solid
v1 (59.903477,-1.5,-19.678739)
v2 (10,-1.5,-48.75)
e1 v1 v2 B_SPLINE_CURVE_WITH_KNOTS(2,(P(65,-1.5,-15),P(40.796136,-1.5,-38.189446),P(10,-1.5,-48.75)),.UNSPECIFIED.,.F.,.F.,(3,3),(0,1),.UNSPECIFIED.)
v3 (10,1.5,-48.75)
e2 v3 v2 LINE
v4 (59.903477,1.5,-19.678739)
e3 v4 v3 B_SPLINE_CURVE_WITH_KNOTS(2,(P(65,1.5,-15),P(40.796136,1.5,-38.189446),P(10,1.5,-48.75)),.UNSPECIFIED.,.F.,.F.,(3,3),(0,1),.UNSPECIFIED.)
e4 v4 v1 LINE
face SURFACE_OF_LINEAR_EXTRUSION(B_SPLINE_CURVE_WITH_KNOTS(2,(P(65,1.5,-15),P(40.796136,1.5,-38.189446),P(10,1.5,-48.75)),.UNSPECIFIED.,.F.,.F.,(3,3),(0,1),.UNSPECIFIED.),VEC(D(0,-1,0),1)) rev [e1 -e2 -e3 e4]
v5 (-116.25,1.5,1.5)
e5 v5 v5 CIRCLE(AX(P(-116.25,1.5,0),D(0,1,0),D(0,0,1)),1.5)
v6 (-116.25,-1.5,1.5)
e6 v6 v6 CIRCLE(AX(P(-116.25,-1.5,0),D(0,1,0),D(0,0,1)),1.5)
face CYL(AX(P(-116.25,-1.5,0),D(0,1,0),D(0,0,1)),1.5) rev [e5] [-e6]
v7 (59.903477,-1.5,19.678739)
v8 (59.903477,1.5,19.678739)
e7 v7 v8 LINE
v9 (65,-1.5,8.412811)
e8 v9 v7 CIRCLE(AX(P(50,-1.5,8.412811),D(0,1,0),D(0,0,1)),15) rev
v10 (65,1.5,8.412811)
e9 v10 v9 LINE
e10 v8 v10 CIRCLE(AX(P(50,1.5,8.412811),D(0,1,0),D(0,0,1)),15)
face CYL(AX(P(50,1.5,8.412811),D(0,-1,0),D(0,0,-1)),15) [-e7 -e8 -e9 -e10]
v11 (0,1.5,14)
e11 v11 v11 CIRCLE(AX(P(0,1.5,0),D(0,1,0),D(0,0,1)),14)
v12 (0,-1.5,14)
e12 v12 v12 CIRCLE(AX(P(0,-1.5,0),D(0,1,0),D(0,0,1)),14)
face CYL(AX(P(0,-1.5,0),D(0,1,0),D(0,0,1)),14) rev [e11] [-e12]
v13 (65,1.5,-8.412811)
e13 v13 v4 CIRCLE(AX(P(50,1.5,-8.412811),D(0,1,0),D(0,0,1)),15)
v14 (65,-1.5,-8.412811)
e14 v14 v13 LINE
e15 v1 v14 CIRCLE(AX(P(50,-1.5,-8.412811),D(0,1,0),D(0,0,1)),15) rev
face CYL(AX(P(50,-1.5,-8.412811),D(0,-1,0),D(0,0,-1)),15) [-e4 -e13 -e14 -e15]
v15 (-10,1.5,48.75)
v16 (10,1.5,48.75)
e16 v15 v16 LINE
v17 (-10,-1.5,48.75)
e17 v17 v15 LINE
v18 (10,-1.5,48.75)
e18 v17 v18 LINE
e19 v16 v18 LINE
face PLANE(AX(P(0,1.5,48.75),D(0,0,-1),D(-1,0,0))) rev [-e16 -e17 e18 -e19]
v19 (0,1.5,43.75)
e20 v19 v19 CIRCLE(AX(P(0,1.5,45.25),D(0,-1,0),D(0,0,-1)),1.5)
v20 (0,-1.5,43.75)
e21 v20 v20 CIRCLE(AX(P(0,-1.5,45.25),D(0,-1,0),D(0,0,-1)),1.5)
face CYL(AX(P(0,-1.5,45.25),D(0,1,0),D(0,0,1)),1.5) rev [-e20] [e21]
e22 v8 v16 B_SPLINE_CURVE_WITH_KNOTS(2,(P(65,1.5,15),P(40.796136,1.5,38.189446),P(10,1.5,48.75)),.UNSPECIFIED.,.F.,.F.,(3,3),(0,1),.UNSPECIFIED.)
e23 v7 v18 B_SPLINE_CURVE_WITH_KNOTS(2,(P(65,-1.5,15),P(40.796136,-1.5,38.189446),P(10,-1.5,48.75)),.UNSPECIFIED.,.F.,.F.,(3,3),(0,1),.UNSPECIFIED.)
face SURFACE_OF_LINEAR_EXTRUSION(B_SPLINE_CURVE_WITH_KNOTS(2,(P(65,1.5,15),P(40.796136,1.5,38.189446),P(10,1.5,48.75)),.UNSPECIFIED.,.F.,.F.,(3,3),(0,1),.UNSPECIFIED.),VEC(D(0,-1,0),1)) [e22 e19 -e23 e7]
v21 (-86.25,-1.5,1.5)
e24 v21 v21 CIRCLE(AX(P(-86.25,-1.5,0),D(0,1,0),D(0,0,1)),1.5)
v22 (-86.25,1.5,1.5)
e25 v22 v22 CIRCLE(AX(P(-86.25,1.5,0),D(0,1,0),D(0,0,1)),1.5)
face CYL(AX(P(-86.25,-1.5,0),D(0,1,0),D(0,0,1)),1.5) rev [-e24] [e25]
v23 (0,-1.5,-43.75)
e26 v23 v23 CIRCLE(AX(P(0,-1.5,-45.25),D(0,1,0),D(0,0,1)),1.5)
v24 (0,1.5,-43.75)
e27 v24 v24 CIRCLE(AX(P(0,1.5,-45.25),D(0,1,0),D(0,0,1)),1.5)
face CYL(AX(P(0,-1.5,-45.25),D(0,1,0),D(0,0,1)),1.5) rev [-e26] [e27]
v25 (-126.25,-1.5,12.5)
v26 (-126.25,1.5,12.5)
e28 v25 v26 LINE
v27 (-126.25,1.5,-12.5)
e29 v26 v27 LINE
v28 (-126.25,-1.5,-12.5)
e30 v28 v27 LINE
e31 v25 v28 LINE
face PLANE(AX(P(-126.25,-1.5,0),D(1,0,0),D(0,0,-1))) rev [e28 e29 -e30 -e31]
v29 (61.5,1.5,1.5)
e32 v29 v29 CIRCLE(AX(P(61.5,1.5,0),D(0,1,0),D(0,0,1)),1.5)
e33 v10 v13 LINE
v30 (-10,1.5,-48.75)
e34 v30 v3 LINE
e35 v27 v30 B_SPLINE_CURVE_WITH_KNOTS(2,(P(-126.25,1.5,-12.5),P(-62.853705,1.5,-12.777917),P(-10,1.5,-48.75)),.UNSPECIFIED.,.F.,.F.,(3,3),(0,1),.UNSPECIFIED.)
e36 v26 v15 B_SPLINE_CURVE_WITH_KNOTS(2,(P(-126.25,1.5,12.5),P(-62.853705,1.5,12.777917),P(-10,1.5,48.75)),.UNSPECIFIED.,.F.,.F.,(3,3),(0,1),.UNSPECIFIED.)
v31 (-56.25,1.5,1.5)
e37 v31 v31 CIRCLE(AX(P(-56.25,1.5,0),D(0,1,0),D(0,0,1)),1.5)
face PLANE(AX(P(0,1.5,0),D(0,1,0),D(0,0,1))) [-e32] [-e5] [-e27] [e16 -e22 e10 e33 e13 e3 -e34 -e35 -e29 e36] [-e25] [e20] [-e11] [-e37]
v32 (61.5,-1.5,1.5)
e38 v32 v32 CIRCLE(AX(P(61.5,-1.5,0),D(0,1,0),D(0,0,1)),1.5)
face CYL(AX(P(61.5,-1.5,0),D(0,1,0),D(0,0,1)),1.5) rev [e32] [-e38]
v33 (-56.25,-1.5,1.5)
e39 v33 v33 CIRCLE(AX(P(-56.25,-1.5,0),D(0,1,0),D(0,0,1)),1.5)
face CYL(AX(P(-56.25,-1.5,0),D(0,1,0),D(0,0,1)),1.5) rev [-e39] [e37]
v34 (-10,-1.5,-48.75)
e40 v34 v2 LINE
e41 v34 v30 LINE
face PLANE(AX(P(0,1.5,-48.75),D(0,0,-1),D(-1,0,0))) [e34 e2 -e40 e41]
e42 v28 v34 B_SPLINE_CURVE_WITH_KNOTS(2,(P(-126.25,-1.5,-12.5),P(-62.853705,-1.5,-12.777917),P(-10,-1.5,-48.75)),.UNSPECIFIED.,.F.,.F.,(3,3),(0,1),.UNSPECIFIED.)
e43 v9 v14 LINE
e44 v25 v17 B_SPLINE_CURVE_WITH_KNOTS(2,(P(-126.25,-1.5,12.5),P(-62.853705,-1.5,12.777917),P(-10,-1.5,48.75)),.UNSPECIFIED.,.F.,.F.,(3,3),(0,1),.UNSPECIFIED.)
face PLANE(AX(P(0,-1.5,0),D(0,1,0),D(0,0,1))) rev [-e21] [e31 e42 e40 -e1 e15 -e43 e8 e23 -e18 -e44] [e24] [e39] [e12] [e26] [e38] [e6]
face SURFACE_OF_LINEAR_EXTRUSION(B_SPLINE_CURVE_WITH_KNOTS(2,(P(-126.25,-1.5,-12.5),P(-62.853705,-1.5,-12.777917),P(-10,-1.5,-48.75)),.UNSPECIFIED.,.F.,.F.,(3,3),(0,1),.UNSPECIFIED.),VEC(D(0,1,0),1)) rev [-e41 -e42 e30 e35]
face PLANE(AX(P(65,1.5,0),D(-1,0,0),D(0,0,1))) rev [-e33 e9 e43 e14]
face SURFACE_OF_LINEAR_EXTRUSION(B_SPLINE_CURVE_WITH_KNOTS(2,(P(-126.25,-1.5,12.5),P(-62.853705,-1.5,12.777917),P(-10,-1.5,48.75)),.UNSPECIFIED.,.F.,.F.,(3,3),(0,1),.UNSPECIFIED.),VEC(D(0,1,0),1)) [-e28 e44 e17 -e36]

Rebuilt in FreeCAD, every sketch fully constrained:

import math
import FreeCAD as App
import Part
import Sketcher
Q = App.Units.Quantity


def edges_at(feature, points):
    """Names of the edges that pass closest to the given points."""
    edges = feature.Shape.Edges
    near = lambda p: min(range(len(edges)), key=lambda i: edges[i].distToShape(Part.Vertex(*p))[0])
    return sorted({f"Edge{near(p) + 1}" for p in points})

doc = App.newDocument("Part")
params = doc.addObject("Spreadsheet::Sheet", "Params")
for row, (alias, value) in enumerate([
    ("pad1_length", "3 mm"),
    ("sketch2_diameter", "3 mm"),
    ("fillet_radius", "15 mm"),
    ("fillet2_radius", "15 mm"),
    ("sketch3_radius", "1.5 mm"),
    ("sketch3_width", "27 mm"),
    ("sketch3_height", "2 mm"),
    ("sketch3_width2", "8.5 mm"),
    ("pad2_length", "3 mm"),
    ("sketch4_radius", "14 mm"),
], start=1):
    params.set(f"A{row}", alias)
    params.set(f"B{row}", "=" + value)
    params.setAlias(f"B{row}", alias)

body = doc.addObject("PartDesign::Body", "Body")

# Sketch on XZ plane
sketch1 = doc.addObject("Sketcher::SketchObject", "Sketch")
body.addObject(sketch1)
sketch1.AttachmentSupport = (doc.XZ_Plane, [""])
sketch1.MapMode = "FlatFace"
sketch1.addGeometry(Part.LineSegment(App.Vector(0, -48.75, 0), App.Vector(0, 0, 0)), False)
sketch1.addGeometry(Part.LineSegment(App.Vector(0, 0, 0), App.Vector(65, 0, 0)), False)
sketch1.addGeometry(Part.LineSegment(App.Vector(65, 0, 0), App.Vector(65, -15, 0)), False)
sketch1.addGeometry(Part.BSplineCurve([App.Vector(65, -15, 0), App.Vector(40.796136, -38.189446, 0), App.Vector(10, -48.75, 0)], [3, 3], [0, 1], False, 2, [1, 1, 1], False), False)
sketch1.addGeometry(Part.LineSegment(App.Vector(10, -48.75, 0), App.Vector(0, -48.75, 0)), False)
sketch1.addConstraint(Sketcher.Constraint("Block", 3))
sketch1.addConstraint(Sketcher.Constraint("Coincident", 0, 2, 1, 1))
sketch1.addConstraint(Sketcher.Constraint("Coincident", 1, 2, 2, 1))
sketch1.addConstraint(Sketcher.Constraint("Coincident", 2, 2, 3, 1))
sketch1.addConstraint(Sketcher.Constraint("Coincident", 3, 2, 4, 1))
sketch1.addConstraint(Sketcher.Constraint("Coincident", 4, 2, 0, 1))
sketch1.addConstraint(Sketcher.Constraint("Vertical", 0))
sketch1.addConstraint(Sketcher.Constraint("Horizontal", 1))
sketch1.addConstraint(Sketcher.Constraint("Vertical", 2))
sketch1.addConstraint(Sketcher.Constraint("Horizontal", 4))
sketch1.addConstraint(Sketcher.Constraint("Coincident", 0, 2, -1, 1))
pad1 = doc.addObject("PartDesign::Pad", "Pad")
body.addObject(pad1)
pad1.Profile = sketch1
pad1.setExpression("Length", "Params.pad1_length")
pad1.Midplane = True

# Sketch on XZ plane
sketch2 = doc.addObject("Sketcher::SketchObject", "Sketch001")
body.addObject(sketch2)
sketch2.AttachmentSupport = (doc.XZ_Plane, [""])
sketch2.MapMode = "FlatFace"
sketch2.AttachmentOffset = App.Placement(App.Vector(0, 0, -1.5), App.Rotation())
sketch2.addGeometry(Part.Circle(App.Vector(0, -45.25, 0), App.Vector(0, 0, 1), 1.5), False)
sketch2.addGeometry(Part.Circle(App.Vector(61.5, 0, 0), App.Vector(0, 0, 1), 1.5), False)
sketch2.addConstraint(Sketcher.Constraint("Equal", 0, 1))
sketch2.addConstraint(Sketcher.Constraint("PointOnObject", 0, 3, -2))
sketch2.addConstraint(Sketcher.Constraint("PointOnObject", 1, 3, -1))
sketch2.addConstraint(Sketcher.Constraint("Diameter", 0, Q("3 mm")))
sketch2.addConstraint(Sketcher.Constraint("DistanceX", -1, 1, 1, 3, Q("61.5 mm")))
sketch2.addConstraint(Sketcher.Constraint("DistanceY", 0, 3, -1, 1, Q("45.25 mm")))
sketch2.setExpression("Constraints[3]", "Params.sketch2_diameter")
pocket1 = doc.addObject("PartDesign::Pocket", "Pocket")
body.addObject(pocket1)
pocket1.Profile = sketch2
pocket1.Type = "ThroughAll"
pocket1.Reversed = True
doc.recompute()

fillet = doc.addObject("PartDesign::Fillet", "Fillet")
body.addObject(fillet)
fillet.Base = (pocket1, edges_at(pocket1, [(65, -0.75, -15)]))
fillet.setExpression("Radius", "Params.fillet_radius")
doc.recompute()

mirrored = doc.addObject("PartDesign::Mirrored", "Mirrored")
body.addObject(mirrored)
mirrored.Originals = [pad1, pocket1]
mirrored.MirrorPlane = (doc.XY_Plane, [""])
body.Tip = mirrored
doc.recompute()

fillet2 = doc.addObject("PartDesign::Fillet", "Fillet001")
body.addObject(fillet2)
fillet2.Base = (mirrored, edges_at(mirrored, [(65, -0.75, 15)]))
fillet2.setExpression("Radius", "Params.fillet2_radius")

# Sketch on XZ plane
sketch3 = doc.addObject("Sketcher::SketchObject", "Sketch002")
body.addObject(sketch3)
sketch3.AttachmentSupport = (doc.XZ_Plane, [""])
sketch3.MapMode = "FlatFace"
sketch3.addGeometry(Part.LineSegment(App.Vector(0, 0, 0), App.Vector(0, -43.75, 0)), False)
sketch3.addGeometry(Part.ArcOfCircle(Part.Circle(App.Vector(0, -45.25, 0), App.Vector(0, 0, 1), 1.5), math.radians(90), math.radians(270)), False)
sketch3.addGeometry(Part.LineSegment(App.Vector(0, -46.75, 0), App.Vector(0, -48.75, 0)), False)
sketch3.addGeometry(Part.LineSegment(App.Vector(0, -48.75, 0), App.Vector(-10, -48.75, 0)), False)
sketch3.addGeometry(Part.BSplineCurve([App.Vector(-71.25, -20, 0), App.Vector(-39.034297, -28.989339, 0), App.Vector(-10, -48.75, 0)], [3, 3], [0.450666758, 1], False, 2, [1, 1, 1], False), False)
sketch3.addGeometry(Part.BSplineCurve([App.Vector(-126.25, -12.5, 0), App.Vector(-97.679397, -12.625248, 0), App.Vector(-71.25, -20, 0)], [3, 3], [0, 0.450666758], False, 2, [1, 1, 1], False), False)
sketch3.addGeometry(Part.LineSegment(App.Vector(-126.25, -12.5, 0), App.Vector(-126.25, 0, 0)), False)
sketch3.addGeometry(Part.LineSegment(App.Vector(-126.25, 0, 0), App.Vector(-117.75, 0, 0)), False)
sketch3.addGeometry(Part.ArcOfCircle(Part.Circle(App.Vector(-116.25, 0, 0), App.Vector(0, 0, 1), 1.5), math.radians(180), math.radians(360)), False)
sketch3.addGeometry(Part.LineSegment(App.Vector(-114.75, 0, 0), App.Vector(-87.75, 0, 0)), False)
sketch3.addGeometry(Part.ArcOfCircle(Part.Circle(App.Vector(-86.25, 0, 0), App.Vector(0, 0, 1), 1.5), math.radians(180), math.radians(360)), False)
sketch3.addGeometry(Part.LineSegment(App.Vector(-84.75, 0, 0), App.Vector(-57.75, 0, 0)), False)
sketch3.addGeometry(Part.ArcOfCircle(Part.Circle(App.Vector(-56.25, 0, 0), App.Vector(0, 0, 1), 1.5), math.radians(180), math.radians(360)), False)
sketch3.addGeometry(Part.LineSegment(App.Vector(-54.75, 0, 0), App.Vector(0, 0, 0)), False)
sketch3.addConstraint(Sketcher.Constraint("Block", 4))
sketch3.addConstraint(Sketcher.Constraint("Block", 5))
sketch3.addConstraint(Sketcher.Constraint("Coincident", 0, 2, 1, 1))
sketch3.addConstraint(Sketcher.Constraint("Coincident", 1, 2, 2, 1))
sketch3.addConstraint(Sketcher.Constraint("Coincident", 2, 2, 3, 1))
sketch3.addConstraint(Sketcher.Constraint("Coincident", 3, 2, 4, 2))
sketch3.addConstraint(Sketcher.Constraint("Coincident", 5, 1, 6, 1))
sketch3.addConstraint(Sketcher.Constraint("Coincident", 6, 2, 7, 1))
sketch3.addConstraint(Sketcher.Constraint("Coincident", 7, 2, 8, 1))
sketch3.addConstraint(Sketcher.Constraint("Coincident", 8, 2, 9, 1))
sketch3.addConstraint(Sketcher.Constraint("Coincident", 9, 2, 10, 1))
sketch3.addConstraint(Sketcher.Constraint("Coincident", 10, 2, 11, 1))
sketch3.addConstraint(Sketcher.Constraint("Coincident", 11, 2, 12, 1))
sketch3.addConstraint(Sketcher.Constraint("Coincident", 12, 2, 13, 1))
sketch3.addConstraint(Sketcher.Constraint("Coincident", 13, 2, 0, 1))
sketch3.addConstraint(Sketcher.Constraint("Vertical", 0))
sketch3.addConstraint(Sketcher.Constraint("Vertical", 2))
sketch3.addConstraint(Sketcher.Constraint("Horizontal", 3))
sketch3.addConstraint(Sketcher.Constraint("Vertical", 6))
sketch3.addConstraint(Sketcher.Constraint("Horizontal", 7))
sketch3.addConstraint(Sketcher.Constraint("Horizontal", 9))
sketch3.addConstraint(Sketcher.Constraint("Horizontal", 11))
sketch3.addConstraint(Sketcher.Constraint("Horizontal", 13))
sketch3.addConstraint(Sketcher.Constraint("Coincident", 13, 2, -1, 1))
sketch3.addConstraint(Sketcher.Constraint("Equal", 1, 8))
sketch3.addConstraint(Sketcher.Constraint("Equal", 8, 10))
sketch3.addConstraint(Sketcher.Constraint("Equal", 10, 12))
sketch3.addConstraint(Sketcher.Constraint("PointOnObject", 1, 3, -2))
sketch3.addConstraint(Sketcher.Constraint("PointOnObject", 8, 3, -1))
sketch3.addConstraint(Sketcher.Constraint("PointOnObject", 10, 3, -1))
sketch3.addConstraint(Sketcher.Constraint("PointOnObject", 12, 3, -1))
sketch3.addConstraint(Sketcher.Constraint("PointOnObject", 1, 2, -2))
sketch3.addConstraint(Sketcher.Constraint("PointOnObject", 6, 2, -1))
sketch3.addConstraint(Sketcher.Constraint("PointOnObject", 8, 2, -1))
sketch3.addConstraint(Sketcher.Constraint("PointOnObject", 10, 2, -1))
sketch3.addConstraint(Sketcher.Constraint("Equal", 9, 11))
sketch3.addConstraint(Sketcher.Constraint("Radius", 1, Q("1.5 mm")))
sketch3.addConstraint(Sketcher.Constraint("DistanceX", 9, 1, 9, 2, Q("27 mm")))
sketch3.addConstraint(Sketcher.Constraint("DistanceY", 2, 2, 2, 1, Q("2 mm")))
sketch3.addConstraint(Sketcher.Constraint("DistanceX", 7, 1, 7, 2, Q("8.5 mm")))
sketch3.setExpression("Constraints[36]", "Params.sketch3_radius")
sketch3.setExpression("Constraints[37]", "Params.sketch3_width")
sketch3.setExpression("Constraints[38]", "Params.sketch3_height")
sketch3.setExpression("Constraints[39]", "Params.sketch3_width2")
pad2 = doc.addObject("PartDesign::Pad", "Pad001")
body.addObject(pad2)
pad2.Profile = sketch3
pad2.setExpression("Length", "Params.pad2_length")
pad2.Midplane = True
doc.recompute()

mirrored2 = doc.addObject("PartDesign::Mirrored", "Mirrored001")
body.addObject(mirrored2)
mirrored2.Originals = [pad2]
mirrored2.MirrorPlane = (doc.XY_Plane, [""])
body.Tip = mirrored2

# Sketch on XZ plane
sketch4 = doc.addObject("Sketcher::SketchObject", "Sketch003")
body.addObject(sketch4)
sketch4.AttachmentSupport = (doc.XZ_Plane, [""])
sketch4.MapMode = "FlatFace"
sketch4.AttachmentOffset = App.Placement(App.Vector(0, 0, -1.5), App.Rotation())
sketch4.addGeometry(Part.ArcOfCircle(Part.Circle(App.Vector(0, 0, 0), App.Vector(0, 0, 1), 14), math.radians(-90), math.radians(0)), False)
sketch4.addGeometry(Part.ArcOfCircle(Part.Circle(App.Vector(0, 0, 0), App.Vector(0, 0, 1), 14), math.radians(90), math.radians(270)), False)
sketch4.addGeometry(Part.ArcOfCircle(Part.Circle(App.Vector(0, 0, 0), App.Vector(0, 0, 1), 14), math.radians(0), math.radians(90)), False)
sketch4.addConstraint(Sketcher.Constraint("Tangent", 0, 1, 1, 2))
sketch4.addConstraint(Sketcher.Constraint("Tangent", 1, 1, 2, 2))
sketch4.addConstraint(Sketcher.Constraint("Tangent", 2, 1, 0, 2))
sketch4.addConstraint(Sketcher.Constraint("Coincident", 0, 3, -1, 1))
sketch4.addConstraint(Sketcher.Constraint("PointOnObject", 0, 1, -2))
sketch4.addConstraint(Sketcher.Constraint("PointOnObject", 1, 1, -2))
sketch4.addConstraint(Sketcher.Constraint("PointOnObject", 2, 1, -1))
sketch4.addConstraint(Sketcher.Constraint("Radius", 0, Q("14 mm")))
sketch4.setExpression("Constraints[7]", "Params.sketch4_radius")
pocket2 = doc.addObject("PartDesign::Pocket", "Pocket001")
body.addObject(pocket2)
pocket2.Profile = sketch4
pocket2.Type = "ThroughAll"
pocket2.Reversed = True

doc.recompute()
